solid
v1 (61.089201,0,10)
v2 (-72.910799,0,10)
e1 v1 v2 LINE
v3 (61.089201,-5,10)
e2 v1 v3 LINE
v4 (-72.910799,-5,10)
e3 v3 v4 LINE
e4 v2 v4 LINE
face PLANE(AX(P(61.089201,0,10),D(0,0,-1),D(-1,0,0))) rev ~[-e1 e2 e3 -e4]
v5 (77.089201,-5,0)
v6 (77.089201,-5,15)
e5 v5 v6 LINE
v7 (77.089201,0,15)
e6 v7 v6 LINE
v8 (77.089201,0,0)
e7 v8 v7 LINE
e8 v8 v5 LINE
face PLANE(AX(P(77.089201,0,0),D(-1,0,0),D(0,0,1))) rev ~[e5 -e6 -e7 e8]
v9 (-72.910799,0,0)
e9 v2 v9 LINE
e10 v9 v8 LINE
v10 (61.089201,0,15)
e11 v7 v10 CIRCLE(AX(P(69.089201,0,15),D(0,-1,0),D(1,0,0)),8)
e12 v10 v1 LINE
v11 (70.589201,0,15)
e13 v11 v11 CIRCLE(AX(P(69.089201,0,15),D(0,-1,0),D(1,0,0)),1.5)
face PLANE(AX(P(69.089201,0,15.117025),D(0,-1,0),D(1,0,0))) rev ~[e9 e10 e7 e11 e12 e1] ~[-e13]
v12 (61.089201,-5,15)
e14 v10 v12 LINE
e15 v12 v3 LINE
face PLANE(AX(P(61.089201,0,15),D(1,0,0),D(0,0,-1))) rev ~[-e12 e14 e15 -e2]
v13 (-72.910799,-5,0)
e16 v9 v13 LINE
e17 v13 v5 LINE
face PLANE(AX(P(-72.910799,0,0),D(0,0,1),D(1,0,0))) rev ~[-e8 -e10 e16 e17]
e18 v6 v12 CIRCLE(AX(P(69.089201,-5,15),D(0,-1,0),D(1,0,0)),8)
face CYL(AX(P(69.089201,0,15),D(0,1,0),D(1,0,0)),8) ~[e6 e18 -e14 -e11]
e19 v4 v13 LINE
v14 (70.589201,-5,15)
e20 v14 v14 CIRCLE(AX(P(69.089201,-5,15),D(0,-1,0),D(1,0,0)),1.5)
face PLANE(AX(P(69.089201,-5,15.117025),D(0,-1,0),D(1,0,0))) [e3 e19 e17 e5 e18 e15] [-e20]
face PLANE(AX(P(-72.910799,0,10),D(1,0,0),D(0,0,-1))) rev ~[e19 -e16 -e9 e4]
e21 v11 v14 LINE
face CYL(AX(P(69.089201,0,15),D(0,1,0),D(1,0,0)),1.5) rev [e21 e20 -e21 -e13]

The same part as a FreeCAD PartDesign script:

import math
import FreeCAD as App
import Part
import Sketcher
Q = App.Units.Quantity

doc = App.newDocument("Part")
body = doc.addObject("PartDesign::Body", "Body")

# Sketch on XZ plane
sketch1 = doc.addObject("Sketcher::SketchObject", "Sketch")
body.addObject(sketch1)
sketch1.AttachmentSupport = (doc.XZ_Plane, [""])
sketch1.MapMode = "FlatFace"
sketch1.addGeometry([
    Part.LineSegment(App.Vector(61.089201, 15, 0), App.Vector(61.089201, 10, 0)),  # 0
    Part.LineSegment(App.Vector(61.089201, 10, 0), App.Vector(-72.910799, 10, 0)),  # 1
    Part.LineSegment(App.Vector(-72.910799, 10, 0), App.Vector(-72.910799, 0, 0)),  # 2
    Part.LineSegment(App.Vector(-72.910799, 0, 0), App.Vector(77.089201, 0, 0)),  # 3
    Part.LineSegment(App.Vector(77.089201, 0, 0), App.Vector(77.089201, 15, 0)),  # 4
    Part.ArcOfCircle(Part.Circle(App.Vector(69.089201, 15, 0), App.Vector(0, 0, 1), 8), math.radians(0), math.radians(180)),  # 5
    Part.Circle(App.Vector(69.089201, 15, 0), App.Vector(0, 0, 1), 1.5),  # 6
], False)
sketch1.addConstraint([
    Sketcher.Constraint("Coincident", 0, 2, 1, 1),
    Sketcher.Constraint("Coincident", 1, 2, 2, 1),
    Sketcher.Constraint("Coincident", 2, 2, 3, 1),
    Sketcher.Constraint("Coincident", 3, 2, 4, 1),
    Sketcher.Constraint("Tangent", 4, 2, 5, 1),
    Sketcher.Constraint("Tangent", 5, 2, 0, 1),
    Sketcher.Constraint("Vertical", 0),
    Sketcher.Constraint("Horizontal", 1),
    Sketcher.Constraint("Vertical", 2),
    Sketcher.Constraint("Horizontal", 3),
    Sketcher.Constraint("Vertical", 4),
    Sketcher.Constraint("Coincident", 6, 3, 5, 3),
    Sketcher.Constraint("PointOnObject", 2, 2, -1),
    Sketcher.Constraint("Diameter", 6, Q("3 mm")),
    Sketcher.Constraint("Radius", 5, Q("8 mm")),
    Sketcher.Constraint("DistanceX", 1, 2, 1, 1, Q("134 mm")),
    Sketcher.Constraint("DistanceY", 0, 2, 0, 1, Q("5 mm")),
    Sketcher.Constraint("DistanceY", 2, 2, 2, 1, Q("10 mm")),
    Sketcher.Constraint("DistanceX", -1, 1, 5, 3, Q("69.089201 mm")),
])
pad1 = doc.addObject("PartDesign::Pad", "Pad")
body.addObject(pad1)
pad1.Profile = sketch1
pad1.Length = 5

doc.recompute()
